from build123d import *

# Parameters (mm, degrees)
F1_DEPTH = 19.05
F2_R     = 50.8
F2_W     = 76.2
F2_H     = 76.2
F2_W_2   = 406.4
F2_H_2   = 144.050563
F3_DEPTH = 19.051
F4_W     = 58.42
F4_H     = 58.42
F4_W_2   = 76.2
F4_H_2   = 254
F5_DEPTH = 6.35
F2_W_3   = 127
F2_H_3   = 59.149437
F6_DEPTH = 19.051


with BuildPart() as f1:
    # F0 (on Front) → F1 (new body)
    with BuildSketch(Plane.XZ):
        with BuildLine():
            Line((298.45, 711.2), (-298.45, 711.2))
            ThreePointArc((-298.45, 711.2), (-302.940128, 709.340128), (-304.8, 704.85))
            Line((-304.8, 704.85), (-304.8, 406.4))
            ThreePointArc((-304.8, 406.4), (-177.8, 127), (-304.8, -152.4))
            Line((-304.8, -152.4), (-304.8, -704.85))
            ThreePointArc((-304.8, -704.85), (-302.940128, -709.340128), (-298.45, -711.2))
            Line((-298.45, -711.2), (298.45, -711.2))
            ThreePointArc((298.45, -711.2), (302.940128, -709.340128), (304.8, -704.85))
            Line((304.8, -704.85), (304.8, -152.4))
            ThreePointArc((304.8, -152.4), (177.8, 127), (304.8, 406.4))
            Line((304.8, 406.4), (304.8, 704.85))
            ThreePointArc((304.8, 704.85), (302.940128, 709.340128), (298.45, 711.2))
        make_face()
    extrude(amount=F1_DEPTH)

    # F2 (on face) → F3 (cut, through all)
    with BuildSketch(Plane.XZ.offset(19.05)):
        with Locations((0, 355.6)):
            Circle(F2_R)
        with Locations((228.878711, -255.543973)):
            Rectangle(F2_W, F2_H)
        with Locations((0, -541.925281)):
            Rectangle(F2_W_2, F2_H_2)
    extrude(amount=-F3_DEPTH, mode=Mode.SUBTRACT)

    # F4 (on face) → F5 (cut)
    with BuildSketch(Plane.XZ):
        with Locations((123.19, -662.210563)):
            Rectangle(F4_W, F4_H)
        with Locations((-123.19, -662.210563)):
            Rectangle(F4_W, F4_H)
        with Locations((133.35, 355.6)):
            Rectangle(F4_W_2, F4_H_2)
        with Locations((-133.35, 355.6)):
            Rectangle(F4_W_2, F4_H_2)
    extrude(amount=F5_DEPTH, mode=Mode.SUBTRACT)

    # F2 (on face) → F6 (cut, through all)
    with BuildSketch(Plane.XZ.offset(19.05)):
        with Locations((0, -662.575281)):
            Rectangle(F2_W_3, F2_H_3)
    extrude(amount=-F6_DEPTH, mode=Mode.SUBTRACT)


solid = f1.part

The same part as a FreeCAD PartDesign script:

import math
import FreeCAD as App
import Part
import Sketcher

V = App.Vector
Q = App.Units.Quantity


def add_polygon(sketch, points):
    """Adds a closed chain of lines whose ends are joined by coincident constraints."""
    first, n = sketch.GeometryCount, len(points)
    for a, b in zip(points, points[1:] + points[:1]):
        sketch.addGeometry(Part.LineSegment(App.Vector(*a, 0), App.Vector(*b, 0)), False)
    for i in range(n):
        sketch.addConstraint(Sketcher.Constraint("Coincident", first + i, 2, first + (i + 1) % n, 1))

doc = App.newDocument("Part")
body = doc.addObject("PartDesign::Body", "Body")

sketch1 = body.newObject("Sketcher::SketchObject", "Sketch")
sketch1.AttachmentSupport = (doc.getObject("XZ_Plane"), [""])
sketch1.MapMode = "FlatFace"
sketch1.addGeometry([
    Part.LineSegment(V(298.45, 711.2, 0), V(-298.45, 711.2, 0)),
    Part.ArcOfCircle(Part.Circle(V(-298.45, 704.85, 0), V(0, 0, 1), 6.35), math.radians(90.000002), math.radians(179.999998)),
    Part.LineSegment(V(-304.8, 704.85, 0), V(-304.8, 406.4, 0)),
    Part.ArcOfCircle(Part.Circle(V(-548.64, 127, 0), V(0, 0, 1), 370.84), math.radians(-48.88791), math.radians(48.88791)),
    Part.LineSegment(V(-304.8, -152.4, 0), V(-304.8, -704.85, 0)),
    Part.ArcOfCircle(Part.Circle(V(-298.45, -704.85, 0), V(0, 0, 1), 6.35), math.radians(-179.999998), math.radians(-90.000002)),
    Part.LineSegment(V(-298.45, -711.2, 0), V(298.45, -711.2, 0)),
    Part.ArcOfCircle(Part.Circle(V(298.45, -704.85, 0), V(0, 0, 1), 6.35), math.radians(-89.999998), math.radians(-0.000002)),
    Part.LineSegment(V(304.8, -704.85, 0), V(304.8, -152.4, 0)),
    Part.ArcOfCircle(Part.Circle(V(548.64, 127, 0), V(0, 0, 1), 370.84), math.radians(131.11209), math.radians(228.88791)),
    Part.LineSegment(V(304.8, 406.4, 0), V(304.8, 704.85, 0)),
    Part.ArcOfCircle(Part.Circle(V(298.45, 704.85, 0), V(0, 0, 1), 6.35), math.radians(0.000002), math.radians(89.999998)),
], False)
sketch1.addConstraint([
    Sketcher.Constraint("Tangent", 0, 2, 1, 1),
    Sketcher.Constraint("Tangent", 1, 2, 2, 1),
    Sketcher.Constraint("Coincident", 2, 2, 3, 2),
    Sketcher.Constraint("Coincident", 3, 1, 4, 1),
    Sketcher.Constraint("Tangent", 4, 2, 5, 1),
    Sketcher.Constraint("Tangent", 5, 2, 6, 1),
    Sketcher.Constraint("Tangent", 6, 2, 7, 1),
    Sketcher.Constraint("Tangent", 7, 2, 8, 1),
    Sketcher.Constraint("Coincident", 8, 2, 9, 2),
    Sketcher.Constraint("Coincident", 9, 1, 10, 1),
    Sketcher.Constraint("Tangent", 10, 2, 11, 1),
    Sketcher.Constraint("Tangent", 11, 2, 0, 1),
    Sketcher.Constraint("Horizontal", 0),
    Sketcher.Constraint("Vertical", 2),
    Sketcher.Constraint("Vertical", 4),
    Sketcher.Constraint("Horizontal", 6),
    Sketcher.Constraint("Vertical", 8),
    Sketcher.Constraint("Vertical", 10),
    Sketcher.Constraint("Equal", 1, 5),
    Sketcher.Constraint("Equal", 5, 7),
    Sketcher.Constraint("Equal", 3, 9),
    Sketcher.Constraint("Equal", 7, 11),
    Sketcher.Constraint("Symmetric", 1, 3, 7, 3, -1, 1),
    Sketcher.Constraint("Symmetric", 3, 3, 9, 3, -2),
    Sketcher.Constraint("Horizontal", 3, 1, 8, 2),
    Sketcher.Constraint("Vertical", 7, 3, 11, 3),
    Sketcher.Constraint("Radius", 3, Q("14.6 in")),
    Sketcher.Constraint("Radius", 1, Q("0.25 in")),
    Sketcher.Constraint("DistanceX", 0, 2, 0, 1, Q("23.5 in")),
    Sketcher.Constraint("DistanceY", -1, 1, 3, 3, Q("5 in")),
    Sketcher.Constraint("DistanceY", -1, 1, 0, 2, Q("28 in")),
    Sketcher.Constraint("DistanceY", -1, 1, 2, 2, Q("16 in")),
])
pad1 = body.newObject("PartDesign::Pad", "Pad")
pad1.Profile = sketch1
pad1.Length = Q("0.75 in")

sketch2 = body.newObject("Sketcher::SketchObject", "Sketch001")
sketch2.AttachmentSupport = (doc.getObject("XZ_Plane"), [""])
sketch2.MapMode = "FlatFace"
sketch2.AttachmentOffset = App.Placement(V(0, 0, 0.75 * 25.4), App.Rotation())
sketch2.addGeometry(Part.Circle(V(0, 355.6, 0), V(0, 0, 1), 50.8), False)
add_polygon(sketch2, [(190.778711, -217.443973), (190.778711, -293.643973), (266.978711, -293.643973), (266.978711, -217.443973)])
add_polygon(sketch2, [(-203.2, -469.899999), (-203.2, -613.950563), (203.2, -613.950563), (203.2, -469.899999)])
sketch2.addConstraint([
    Sketcher.Constraint("Vertical", 1),
    Sketcher.Constraint("Horizontal", 2),
    Sketcher.Constraint("Vertical", 3),
    Sketcher.Constraint("Horizontal", 4),
    Sketcher.Constraint("Vertical", 5),
    Sketcher.Constraint("Horizontal", 6),
    Sketcher.Constraint("Vertical", 7),
    Sketcher.Constraint("Horizontal", 8),
    Sketcher.Constraint("PointOnObject", 0, 3, -2),
    Sketcher.Constraint("Equal", 4, 1),
    Sketcher.Constraint("Diameter", 0, Q("4 in")),
    Sketcher.Constraint("DistanceX", 2, 1, 2, 2, Q("3 in")),
    Sketcher.Constraint("DistanceX", 6, 1, 6, 2, Q("16 in")),
    Sketcher.Constraint("DistanceY", -1, 1, 0, 3, Q("14 in")),
    Sketcher.Constraint("DistanceX", 5, 2, -1, 1, Q("8 in")),
    Sketcher.Constraint("DistanceY", 7, 2, -1, 1, Q("18.5 in")),
    Sketcher.Constraint("DistanceY", 5, 2, 5, 1, 144.050563),
    Sketcher.Constraint("DistanceX", -1, 1, 1, 2, 190.778711),
    Sketcher.Constraint("DistanceY", 5, 2, 1, 2, 320.30659),
])
pocket1 = body.newObject("PartDesign::Pocket", "Pocket")
pocket1.Profile = sketch2
pocket1.Type = "ThroughAll"

sketch3 = body.newObject("Sketcher::SketchObject", "Sketch002")
sketch3.AttachmentSupport = (doc.getObject("XZ_Plane"), [""])
sketch3.MapMode = "FlatFace"
add_polygon(sketch3, [(93.98, -633.000563), (93.98, -691.420563), (152.4, -691.420563), (152.4, -633.000563)])
add_polygon(sketch3, [(-152.4, -633.000563), (-152.4, -691.420563), (-93.98, -691.420563), (-93.98, -633.000563)])
add_polygon(sketch3, [(95.25, 482.6), (95.25, 228.6), (171.45, 228.6), (171.45, 482.6)])
add_polygon(sketch3, [(-171.45, 482.6), (-171.45, 228.6), (-95.25, 228.6), (-95.25, 482.6)])
sketch3.addConstraint([
    Sketcher.Constraint("Vertical", 0),
    Sketcher.Constraint("Horizontal", 1),
    Sketcher.Constraint("Vertical", 2),
    Sketcher.Constraint("Horizontal", 3),
    Sketcher.Constraint("Vertical", 4),
    Sketcher.Constraint("Horizontal", 5),
    Sketcher.Constraint("Vertical", 6),
    Sketcher.Constraint("Horizontal", 7),
    Sketcher.Constraint("Vertical", 8),
    Sketcher.Constraint("Horizontal", 9),
    Sketcher.Constraint("Vertical", 10),
    Sketcher.Constraint("Horizontal", 11),
    Sketcher.Constraint("Vertical", 12),
    Sketcher.Constraint("Horizontal", 13),
    Sketcher.Constraint("Vertical", 14),
    Sketcher.Constraint("Horizontal", 15),
    Sketcher.Constraint("Symmetric", 1, 2, 4, 2, -2),
    Sketcher.Constraint("Symmetric", 3, 2, 6, 2, -2),
    Sketcher.Constraint("Symmetric", 9, 2, 12, 2, -2),
    Sketcher.Constraint("Symmetric", 11, 2, 14, 2, -2),
    Sketcher.Constraint("Equal", 7, 0),
    Sketcher.Constraint("DistanceX", 9, 1, 9, 2, Q("3 in")),
    Sketcher.Constraint("DistanceY", 8, 2, 8, 1, Q("10 in")),
    Sketcher.Constraint("DistanceX", 1, 1, 1, 2, Q("2.3 in")),
    Sketcher.Constraint("DistanceX", -1, 1, 1, 2, Q("6 in")),
    Sketcher.Constraint("DistanceY", -1, 1, 8, 2, Q("9 in")),
    Sketcher.Constraint("DistanceX", 12, 2, 8, 2, Q("10.5 in")),
    Sketcher.Constraint("DistanceY", 0, 2, -1, 1, 691.420563),
])
pocket2 = body.newObject("PartDesign::Pocket", "Pocket001")
pocket2.Profile = sketch3
pocket2.Length = Q("0.25 in")
pocket2.Reversed = True

sketch4 = body.newObject("Sketcher::SketchObject", "Sketch003")
sketch4.AttachmentSupport = (doc.getObject("XZ_Plane"), [""])
sketch4.MapMode = "FlatFace"
sketch4.AttachmentOffset = App.Placement(V(0, 0, 0.75 * 25.4), App.Rotation())
add_polygon(sketch4, [(-63.5, -633.000563), (-63.5, -692.15), (63.5, -692.15), (63.5, -633.000563)])
sketch4.addConstraint([
    Sketcher.Constraint("Vertical", 0),
    Sketcher.Constraint("Horizontal", 1),
    Sketcher.Constraint("Vertical", 2),
    Sketcher.Constraint("Horizontal", 3),
    Sketcher.Constraint("DistanceX", 1, 1, 1, 2, Q("5 in")),
    Sketcher.Constraint("DistanceX", 0, 2, -1, 1, Q("2.5 in")),
    Sketcher.Constraint("DistanceY", 0, 2, -1, 1, Q("27.25 in")),
    Sketcher.Constraint("DistanceY", 0, 2, 0, 1, 59.149437),
])
pocket3 = body.newObject("PartDesign::Pocket", "Pocket002")
pocket3.Profile = sketch4
pocket3.Type = "ThroughAll"

doc.recompute()
